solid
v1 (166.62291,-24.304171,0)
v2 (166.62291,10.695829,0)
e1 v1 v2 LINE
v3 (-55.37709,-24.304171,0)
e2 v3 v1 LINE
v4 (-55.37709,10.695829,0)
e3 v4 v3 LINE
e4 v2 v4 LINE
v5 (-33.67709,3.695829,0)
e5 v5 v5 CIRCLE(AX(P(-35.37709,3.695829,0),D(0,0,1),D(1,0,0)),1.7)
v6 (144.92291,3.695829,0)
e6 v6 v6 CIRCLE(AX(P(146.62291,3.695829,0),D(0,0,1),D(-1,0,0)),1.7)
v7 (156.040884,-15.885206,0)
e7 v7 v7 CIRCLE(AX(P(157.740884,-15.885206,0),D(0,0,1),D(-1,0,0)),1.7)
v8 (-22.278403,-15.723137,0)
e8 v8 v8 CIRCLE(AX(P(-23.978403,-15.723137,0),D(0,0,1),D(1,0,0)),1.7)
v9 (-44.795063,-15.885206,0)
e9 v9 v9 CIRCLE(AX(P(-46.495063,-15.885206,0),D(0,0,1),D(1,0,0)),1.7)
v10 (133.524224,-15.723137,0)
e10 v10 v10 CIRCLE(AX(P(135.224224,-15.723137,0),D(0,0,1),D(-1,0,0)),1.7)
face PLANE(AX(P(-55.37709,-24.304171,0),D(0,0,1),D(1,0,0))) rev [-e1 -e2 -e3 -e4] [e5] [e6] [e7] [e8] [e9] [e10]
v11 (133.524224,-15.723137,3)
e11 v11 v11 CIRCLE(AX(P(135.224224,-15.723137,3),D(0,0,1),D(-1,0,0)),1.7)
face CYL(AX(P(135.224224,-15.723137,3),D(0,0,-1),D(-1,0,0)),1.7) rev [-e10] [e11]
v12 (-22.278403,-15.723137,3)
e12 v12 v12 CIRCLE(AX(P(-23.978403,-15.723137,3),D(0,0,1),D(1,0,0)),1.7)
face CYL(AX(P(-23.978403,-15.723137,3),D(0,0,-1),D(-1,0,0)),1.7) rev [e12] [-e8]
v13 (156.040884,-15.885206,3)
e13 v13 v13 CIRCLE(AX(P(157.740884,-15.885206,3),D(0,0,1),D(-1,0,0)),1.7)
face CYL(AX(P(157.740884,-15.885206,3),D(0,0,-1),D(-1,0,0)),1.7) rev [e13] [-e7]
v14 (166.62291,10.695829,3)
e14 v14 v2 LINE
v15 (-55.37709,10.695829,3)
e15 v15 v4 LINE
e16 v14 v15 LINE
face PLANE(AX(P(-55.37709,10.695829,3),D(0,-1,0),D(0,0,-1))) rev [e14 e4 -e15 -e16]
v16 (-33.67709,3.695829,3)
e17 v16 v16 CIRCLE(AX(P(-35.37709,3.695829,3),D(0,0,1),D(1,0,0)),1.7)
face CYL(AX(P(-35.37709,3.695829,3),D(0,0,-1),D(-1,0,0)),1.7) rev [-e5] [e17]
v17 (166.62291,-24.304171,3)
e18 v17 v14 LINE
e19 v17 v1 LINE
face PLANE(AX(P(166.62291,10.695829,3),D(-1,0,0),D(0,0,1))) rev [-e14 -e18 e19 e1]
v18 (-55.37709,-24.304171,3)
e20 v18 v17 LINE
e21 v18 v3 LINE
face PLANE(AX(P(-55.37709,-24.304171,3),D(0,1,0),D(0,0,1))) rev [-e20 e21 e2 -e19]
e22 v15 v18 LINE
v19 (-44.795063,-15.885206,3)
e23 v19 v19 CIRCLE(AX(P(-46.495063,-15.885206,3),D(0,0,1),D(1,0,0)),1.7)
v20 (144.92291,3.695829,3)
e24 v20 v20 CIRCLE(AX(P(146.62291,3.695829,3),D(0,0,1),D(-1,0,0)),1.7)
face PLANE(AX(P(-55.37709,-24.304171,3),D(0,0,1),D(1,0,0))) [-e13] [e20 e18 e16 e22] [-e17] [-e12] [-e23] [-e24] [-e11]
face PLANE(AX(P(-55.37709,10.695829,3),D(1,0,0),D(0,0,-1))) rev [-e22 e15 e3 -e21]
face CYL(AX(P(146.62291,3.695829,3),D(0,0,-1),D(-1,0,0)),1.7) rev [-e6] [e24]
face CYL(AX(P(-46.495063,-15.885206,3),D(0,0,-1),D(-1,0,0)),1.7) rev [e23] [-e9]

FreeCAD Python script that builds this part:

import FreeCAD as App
import Part
import Sketcher

doc = App.newDocument("Part")
params = doc.addObject("Spreadsheet::Sheet", "Params")
for row, (alias, value) in enumerate([
    ("sketch1_diameter", "3.4 mm"),
    ("sketch1_width", "222 mm"),
    ("sketch1_height", "35 mm"),
    ("pad1_length", "3 mm"),
], start=1):
    params.set(f"A{row}", alias)
    params.set(f"B{row}", "=" + value)
    params.setAlias(f"B{row}", alias)

body = doc.addObject("PartDesign::Body", "Body")

sketch1 = doc.addObject("Sketcher::SketchObject", "Sketch")
body.addObject(sketch1)
sketch1.AttachmentSupport = (doc.XY_Plane, [""])
sketch1.MapMode = "FlatFace"
sketch1.addGeometry([
    Part.LineSegment(App.Vector(-55.4, 10.7, 0), App.Vector(-55.4, -24.3, 0)),
    Part.LineSegment(App.Vector(-55.4, -24.3, 0), App.Vector(166.6, -24.3, 0)),
    Part.LineSegment(App.Vector(166.6, -24.3, 0), App.Vector(166.6, 10.7, 0)),
    Part.LineSegment(App.Vector(166.6, 10.7, 0), App.Vector(-55.4, 10.7, 0)),
    Part.Circle(App.Vector(-46.5, -15.9, 0), App.Vector(0, 0, 1), 1.7),
    Part.Circle(App.Vector(-24, -15.7, 0), App.Vector(0, 0, 1), 1.7),
    Part.Circle(App.Vector(135.2, -15.7, 0), App.Vector(0, 0, 1), 1.7),
    Part.Circle(App.Vector(157.7, -15.9, 0), App.Vector(0, 0, 1), 1.7),
    Part.Circle(App.Vector(-35.4, 3.7, 0), App.Vector(0, 0, 1), 1.7),
    Part.Circle(App.Vector(146.6, 3.7, 0), App.Vector(0, 0, 1), 1.7),
], False)
sketch1.addConstraint([
    Sketcher.Constraint("Coincident", 0, 2, 1, 1),
    Sketcher.Constraint("Coincident", 1, 2, 2, 1),
    Sketcher.Constraint("Coincident", 2, 2, 3, 1),
    Sketcher.Constraint("Coincident", 3, 2, 0, 1),
    Sketcher.Constraint("Vertical", 0),
    Sketcher.Constraint("Horizontal", 1),
    Sketcher.Constraint("Vertical", 2),
    Sketcher.Constraint("Horizontal", 3),
    Sketcher.Constraint("Equal", 4, 5),
    Sketcher.Constraint("Equal", 5, 6),
    Sketcher.Constraint("Equal", 6, 7),
    Sketcher.Constraint("Equal", 7, 8),
    Sketcher.Constraint("Equal", 8, 9),
    Sketcher.Constraint("Horizontal", 5, 3, 6, 3),
    Sketcher.Constraint("Horizontal", 4, 3, 7, 3),
    Sketcher.Constraint("Horizontal", 8, 3, 9, 3),
    Sketcher.Constraint("Diameter", 4, 3.4),
    Sketcher.Constraint("DistanceX", 1, 1, 1, 2, 222.0),
    Sketcher.Constraint("DistanceY", 0, 2, 0, 1, 35.0),
    Sketcher.Constraint("DistanceX", 8, 3, 9, 3, 182.0),
    Sketcher.Constraint("DistanceX", 0, 2, 8, 3, 20.0),
    Sketcher.Constraint("DistanceY", 0, 2, 8, 3, 28.0),
    Sketcher.Constraint("DistanceX", 8, 3, -1, 1, 35.37709),
    Sketcher.Constraint("DistanceY", -1, 1, 8, 3, 3.695829),
    Sketcher.Constraint("DistanceX", 4, 3, 5, 3, 22.51666),
    Sketcher.Constraint("DistanceY", 4, 3, 5, 3, 0.16207),
    Sketcher.Constraint("DistanceX", 6, 3, 7, 3, 22.51666),
    Sketcher.Constraint("DistanceX", 4, 3, -1, 1, 46.495063),
    Sketcher.Constraint("DistanceY", 4, 3, -1, 1, 15.885206),
    Sketcher.Constraint("DistanceX", -1, 1, 6, 3, 135.224224),
])
sketch1.setExpression("Constraints[16]", "Params.sketch1_diameter")
sketch1.setExpression("Constraints[17]", "Params.sketch1_width")
sketch1.setExpression("Constraints[18]", "Params.sketch1_height")
pad1 = doc.addObject("PartDesign::Pad", "Pad")
body.addObject(pad1)
pad1.Profile = sketch1
pad1.setExpression("Length", "Params.pad1_length")

doc.recompute()
